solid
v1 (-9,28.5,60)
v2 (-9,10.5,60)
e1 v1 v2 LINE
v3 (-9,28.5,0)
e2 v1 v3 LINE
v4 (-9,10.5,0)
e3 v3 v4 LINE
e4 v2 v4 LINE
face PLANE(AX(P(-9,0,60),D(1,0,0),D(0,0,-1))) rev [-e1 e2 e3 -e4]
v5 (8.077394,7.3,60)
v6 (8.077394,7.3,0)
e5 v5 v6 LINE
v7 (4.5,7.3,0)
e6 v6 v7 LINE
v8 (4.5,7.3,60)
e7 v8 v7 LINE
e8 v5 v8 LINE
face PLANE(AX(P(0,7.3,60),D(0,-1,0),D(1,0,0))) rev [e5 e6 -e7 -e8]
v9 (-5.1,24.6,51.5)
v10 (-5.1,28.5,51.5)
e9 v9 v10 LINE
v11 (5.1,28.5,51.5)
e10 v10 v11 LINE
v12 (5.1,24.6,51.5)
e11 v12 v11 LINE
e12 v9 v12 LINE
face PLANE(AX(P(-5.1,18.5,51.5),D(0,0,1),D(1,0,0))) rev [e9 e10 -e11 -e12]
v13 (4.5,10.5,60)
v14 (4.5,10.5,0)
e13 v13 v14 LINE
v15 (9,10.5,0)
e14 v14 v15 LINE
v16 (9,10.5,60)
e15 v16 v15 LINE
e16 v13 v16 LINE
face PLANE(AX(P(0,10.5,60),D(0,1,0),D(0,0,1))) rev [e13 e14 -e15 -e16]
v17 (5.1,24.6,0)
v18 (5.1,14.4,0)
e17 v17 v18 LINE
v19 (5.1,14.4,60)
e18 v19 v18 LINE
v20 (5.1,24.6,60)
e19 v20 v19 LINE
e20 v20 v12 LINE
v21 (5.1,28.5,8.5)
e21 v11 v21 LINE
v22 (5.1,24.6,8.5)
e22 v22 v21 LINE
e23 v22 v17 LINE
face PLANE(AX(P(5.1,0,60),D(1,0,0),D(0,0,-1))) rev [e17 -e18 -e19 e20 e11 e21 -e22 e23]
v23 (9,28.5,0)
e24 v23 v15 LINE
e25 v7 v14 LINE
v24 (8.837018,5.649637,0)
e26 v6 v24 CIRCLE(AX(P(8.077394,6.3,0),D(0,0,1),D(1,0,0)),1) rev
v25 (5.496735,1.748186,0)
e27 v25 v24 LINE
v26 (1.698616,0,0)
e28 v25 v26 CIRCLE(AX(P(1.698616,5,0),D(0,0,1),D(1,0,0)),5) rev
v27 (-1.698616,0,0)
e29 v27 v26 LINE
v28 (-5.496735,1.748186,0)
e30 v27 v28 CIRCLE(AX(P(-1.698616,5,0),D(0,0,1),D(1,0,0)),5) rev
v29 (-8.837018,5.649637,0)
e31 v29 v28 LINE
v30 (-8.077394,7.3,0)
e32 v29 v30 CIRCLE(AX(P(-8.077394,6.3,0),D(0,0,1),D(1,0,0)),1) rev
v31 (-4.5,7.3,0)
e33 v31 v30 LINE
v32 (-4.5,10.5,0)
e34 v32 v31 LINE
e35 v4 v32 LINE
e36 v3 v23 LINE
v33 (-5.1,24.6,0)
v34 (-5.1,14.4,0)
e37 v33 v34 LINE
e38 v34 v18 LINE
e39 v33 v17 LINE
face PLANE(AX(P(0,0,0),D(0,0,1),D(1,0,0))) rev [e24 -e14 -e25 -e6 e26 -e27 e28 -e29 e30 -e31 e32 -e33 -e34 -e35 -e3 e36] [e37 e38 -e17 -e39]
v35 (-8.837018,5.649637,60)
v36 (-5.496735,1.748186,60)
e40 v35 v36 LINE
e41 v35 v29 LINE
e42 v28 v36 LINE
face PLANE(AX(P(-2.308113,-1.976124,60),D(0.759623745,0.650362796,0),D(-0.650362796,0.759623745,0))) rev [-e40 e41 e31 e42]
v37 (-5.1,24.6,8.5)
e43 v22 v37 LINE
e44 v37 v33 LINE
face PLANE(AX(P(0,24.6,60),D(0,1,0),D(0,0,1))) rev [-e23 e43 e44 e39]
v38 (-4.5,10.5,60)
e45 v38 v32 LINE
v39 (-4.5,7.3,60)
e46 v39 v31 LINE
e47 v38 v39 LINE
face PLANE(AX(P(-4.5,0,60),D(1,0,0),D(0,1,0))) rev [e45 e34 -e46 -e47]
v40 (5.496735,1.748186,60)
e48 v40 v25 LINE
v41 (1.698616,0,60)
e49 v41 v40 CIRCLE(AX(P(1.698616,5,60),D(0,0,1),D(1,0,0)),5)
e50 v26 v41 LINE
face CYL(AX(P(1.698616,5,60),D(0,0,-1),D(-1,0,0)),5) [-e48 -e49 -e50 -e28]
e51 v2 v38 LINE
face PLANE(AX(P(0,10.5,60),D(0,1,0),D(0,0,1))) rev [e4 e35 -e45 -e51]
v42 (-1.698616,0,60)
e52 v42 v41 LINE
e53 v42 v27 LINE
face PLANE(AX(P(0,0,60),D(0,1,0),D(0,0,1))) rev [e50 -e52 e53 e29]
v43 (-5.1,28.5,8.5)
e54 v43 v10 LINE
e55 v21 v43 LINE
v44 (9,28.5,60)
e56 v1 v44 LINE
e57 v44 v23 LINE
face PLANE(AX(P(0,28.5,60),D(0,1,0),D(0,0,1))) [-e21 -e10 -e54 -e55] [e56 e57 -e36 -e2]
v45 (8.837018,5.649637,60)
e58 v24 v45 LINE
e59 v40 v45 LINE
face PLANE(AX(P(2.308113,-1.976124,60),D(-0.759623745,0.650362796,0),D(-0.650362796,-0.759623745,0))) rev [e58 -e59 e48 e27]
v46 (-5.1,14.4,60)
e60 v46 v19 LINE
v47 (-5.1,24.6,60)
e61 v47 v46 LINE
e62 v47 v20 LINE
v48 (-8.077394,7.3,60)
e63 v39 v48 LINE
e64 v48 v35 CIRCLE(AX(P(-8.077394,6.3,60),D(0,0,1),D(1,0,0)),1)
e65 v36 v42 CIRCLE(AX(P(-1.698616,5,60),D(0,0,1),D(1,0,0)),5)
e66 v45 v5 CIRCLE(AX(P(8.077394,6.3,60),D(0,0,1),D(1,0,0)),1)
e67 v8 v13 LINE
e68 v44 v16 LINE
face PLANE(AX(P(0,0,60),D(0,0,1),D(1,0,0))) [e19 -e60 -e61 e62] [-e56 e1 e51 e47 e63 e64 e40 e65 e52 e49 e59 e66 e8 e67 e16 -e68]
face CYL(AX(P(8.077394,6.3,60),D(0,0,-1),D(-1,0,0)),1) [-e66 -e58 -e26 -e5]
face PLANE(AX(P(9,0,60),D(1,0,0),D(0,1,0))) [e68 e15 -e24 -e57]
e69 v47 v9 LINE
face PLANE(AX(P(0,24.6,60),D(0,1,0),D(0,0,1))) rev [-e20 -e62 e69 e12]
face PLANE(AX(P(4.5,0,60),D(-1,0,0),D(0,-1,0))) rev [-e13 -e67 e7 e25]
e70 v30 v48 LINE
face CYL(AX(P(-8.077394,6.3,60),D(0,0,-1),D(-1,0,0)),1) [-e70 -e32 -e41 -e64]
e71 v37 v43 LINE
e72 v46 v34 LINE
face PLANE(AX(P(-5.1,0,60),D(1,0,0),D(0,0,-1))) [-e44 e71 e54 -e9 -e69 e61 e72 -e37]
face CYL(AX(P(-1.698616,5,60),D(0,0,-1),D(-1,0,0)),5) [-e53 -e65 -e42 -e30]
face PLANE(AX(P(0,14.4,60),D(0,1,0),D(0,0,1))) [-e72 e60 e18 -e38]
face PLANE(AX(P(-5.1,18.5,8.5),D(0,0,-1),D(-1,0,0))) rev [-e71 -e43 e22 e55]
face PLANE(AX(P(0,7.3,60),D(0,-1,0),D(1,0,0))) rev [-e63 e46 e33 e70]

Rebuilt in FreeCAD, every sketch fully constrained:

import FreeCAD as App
import Part
import Sketcher
from FreeCAD import Vector


def edges_at(feature, points):
    """Names of the edges that pass closest to the given points."""
    edges = feature.Shape.Edges
    near = lambda p: min(range(len(edges)), key=lambda i: edges[i].distToShape(Part.Vertex(*p))[0])
    return sorted({f"Edge{near(p) + 1}" for p in points})


def add_polygon(sketch, points):
    """Adds a closed chain of lines whose ends are joined by coincident constraints."""
    first, n = sketch.GeometryCount, len(points)
    for a, b in zip(points, points[1:] + points[:1]):
        sketch.addGeometry(Part.LineSegment(App.Vector(*a, 0), App.Vector(*b, 0)), False)
    for i in range(n):
        sketch.addConstraint(Sketcher.Constraint("Coincident", first + i, 2, first + (i + 1) % n, 1))

doc = App.newDocument("Part")
body = doc.addObject("PartDesign::Body", "Body")

# Sketch on XY plane
sketch1 = doc.addObject("Sketcher::SketchObject", "Sketch")
body.addObject(sketch1)
sketch1.AttachmentSupport = (doc.XY_Plane, [""])
sketch1.MapMode = "FlatFace"
add_polygon(sketch1, [(-9, 10.5), (-4.5, 10.5), (-4.5, 7.3), (-10.2, 7.3), (-4, 0), (4, 0), (10.2, 7.3), (4.5, 7.3), (4.5, 10.5), (9, 10.5), (9, 28.5), (-9, 28.5)])  # lines 0-11
add_polygon(sketch1, [(5.1, 14.4), (-5.1, 14.4), (-5.1, 24.6), (5.1, 24.6)])  # lines 12-15
sketch1.addConstraint([
    Sketcher.Constraint("Horizontal", 0),
    Sketcher.Constraint("Vertical", 1),
    Sketcher.Constraint("Horizontal", 2),
    Sketcher.Constraint("Horizontal", 4),
    Sketcher.Constraint("Horizontal", 6),
    Sketcher.Constraint("Vertical", 7),
    Sketcher.Constraint("Horizontal", 8),
    Sketcher.Constraint("Vertical", 9),
    Sketcher.Constraint("Horizontal", 10),
    Sketcher.Constraint("Vertical", 11),
    Sketcher.Constraint("Horizontal", 12),
    Sketcher.Constraint("Vertical", 13),
    Sketcher.Constraint("Horizontal", 14),
    Sketcher.Constraint("Vertical", 15),
    Sketcher.Constraint("Symmetric", 3, 2, 4, 2, -1, 1),
    Sketcher.Constraint("Symmetric", 2, 2, 5, 2, -2),
    Sketcher.Constraint("Symmetric", 0, 2, 7, 2, -2),
    Sketcher.Constraint("Equal", 0, 8),
    Sketcher.Constraint("Equal", 10, 9),
    Sketcher.Constraint("Equal", 14, 13),
    Sketcher.Constraint("DistanceX", 4, 1, 4, 2, 8.0),
    Sketcher.Constraint("DistanceX", 10, 2, 10, 1, 18.0),
    Sketcher.Constraint("DistanceX", 0, 1, 0, 2, 4.5),
    Sketcher.Constraint("DistanceX", 12, 2, 12, 1, 10.2),
    Sketcher.Constraint("DistanceY", 1, 2, 1, 1, 3.2),
    Sketcher.Constraint("DistanceX", 2, 2, 2, 1, 5.75),
    Sketcher.Constraint("DistanceY", -1, 1, 0, 2, 10.5),
    Sketcher.Constraint("DistanceX", 12, 2, -1, 1, 5.1),
    Sketcher.Constraint("DistanceY", -1, 1, 12, 2, 14.4),
])
pad1 = doc.addObject("PartDesign::Pad", "Pad")
body.addObject(pad1)
pad1.Profile = sketch1
pad1.Length = 60
doc.recompute()

fillet = doc.addObject("PartDesign::Fillet", "Fillet")
body.addObject(fillet)
fillet.Base = (pad1, edges_at(pad1, [(10.25, 7.3, 30), (-10.25, 7.3, 30)]))
fillet.Radius = 1
doc.recompute()

fillet2 = doc.addObject("PartDesign::Fillet", "Fillet001")
body.addObject(fillet2)
fillet2.Base = (fillet, edges_at(fillet, [(4, 0, 30), (-4, 0, 30)]))
fillet2.Radius = 5

# Sketch on XZ plane
sketch2 = doc.addObject("Sketcher::SketchObject", "Sketch001")
body.addObject(sketch2)
sketch2.AttachmentSupport = (doc.XZ_Plane, [""])
sketch2.MapMode = "FlatFace"
sketch2.AttachmentOffset = App.Placement(Vector(0, 0, -28.5), App.Rotation())
add_polygon(sketch2, [(-5, 8), (-5, 52), (5, 52), (5, 8)])  # lines 0-3
sketch2.addConstraint([
    Sketcher.Constraint("Vertical", 0),
    Sketcher.Constraint("Horizontal", 1),
    Sketcher.Constraint("Vertical", 2),
    Sketcher.Constraint("Horizontal", 3),
    Sketcher.Constraint("DistanceY", 0, 1, 0, 2, 43.0),
    Sketcher.Constraint("DistanceX", 1, 1, 1, 2, 10.2),
    Sketcher.Constraint("DistanceX", 0, 2, -1, 1, 5.1),
    Sketcher.Constraint("DistanceY", -1, 1, 0, 2, 51.5),
])
pocket1 = doc.addObject("PartDesign::Pocket", "Pocket")
body.addObject(pocket1)
pocket1.Profile = sketch2
pocket1.Length = 10
pocket1.Reversed = True

doc.recompute()
